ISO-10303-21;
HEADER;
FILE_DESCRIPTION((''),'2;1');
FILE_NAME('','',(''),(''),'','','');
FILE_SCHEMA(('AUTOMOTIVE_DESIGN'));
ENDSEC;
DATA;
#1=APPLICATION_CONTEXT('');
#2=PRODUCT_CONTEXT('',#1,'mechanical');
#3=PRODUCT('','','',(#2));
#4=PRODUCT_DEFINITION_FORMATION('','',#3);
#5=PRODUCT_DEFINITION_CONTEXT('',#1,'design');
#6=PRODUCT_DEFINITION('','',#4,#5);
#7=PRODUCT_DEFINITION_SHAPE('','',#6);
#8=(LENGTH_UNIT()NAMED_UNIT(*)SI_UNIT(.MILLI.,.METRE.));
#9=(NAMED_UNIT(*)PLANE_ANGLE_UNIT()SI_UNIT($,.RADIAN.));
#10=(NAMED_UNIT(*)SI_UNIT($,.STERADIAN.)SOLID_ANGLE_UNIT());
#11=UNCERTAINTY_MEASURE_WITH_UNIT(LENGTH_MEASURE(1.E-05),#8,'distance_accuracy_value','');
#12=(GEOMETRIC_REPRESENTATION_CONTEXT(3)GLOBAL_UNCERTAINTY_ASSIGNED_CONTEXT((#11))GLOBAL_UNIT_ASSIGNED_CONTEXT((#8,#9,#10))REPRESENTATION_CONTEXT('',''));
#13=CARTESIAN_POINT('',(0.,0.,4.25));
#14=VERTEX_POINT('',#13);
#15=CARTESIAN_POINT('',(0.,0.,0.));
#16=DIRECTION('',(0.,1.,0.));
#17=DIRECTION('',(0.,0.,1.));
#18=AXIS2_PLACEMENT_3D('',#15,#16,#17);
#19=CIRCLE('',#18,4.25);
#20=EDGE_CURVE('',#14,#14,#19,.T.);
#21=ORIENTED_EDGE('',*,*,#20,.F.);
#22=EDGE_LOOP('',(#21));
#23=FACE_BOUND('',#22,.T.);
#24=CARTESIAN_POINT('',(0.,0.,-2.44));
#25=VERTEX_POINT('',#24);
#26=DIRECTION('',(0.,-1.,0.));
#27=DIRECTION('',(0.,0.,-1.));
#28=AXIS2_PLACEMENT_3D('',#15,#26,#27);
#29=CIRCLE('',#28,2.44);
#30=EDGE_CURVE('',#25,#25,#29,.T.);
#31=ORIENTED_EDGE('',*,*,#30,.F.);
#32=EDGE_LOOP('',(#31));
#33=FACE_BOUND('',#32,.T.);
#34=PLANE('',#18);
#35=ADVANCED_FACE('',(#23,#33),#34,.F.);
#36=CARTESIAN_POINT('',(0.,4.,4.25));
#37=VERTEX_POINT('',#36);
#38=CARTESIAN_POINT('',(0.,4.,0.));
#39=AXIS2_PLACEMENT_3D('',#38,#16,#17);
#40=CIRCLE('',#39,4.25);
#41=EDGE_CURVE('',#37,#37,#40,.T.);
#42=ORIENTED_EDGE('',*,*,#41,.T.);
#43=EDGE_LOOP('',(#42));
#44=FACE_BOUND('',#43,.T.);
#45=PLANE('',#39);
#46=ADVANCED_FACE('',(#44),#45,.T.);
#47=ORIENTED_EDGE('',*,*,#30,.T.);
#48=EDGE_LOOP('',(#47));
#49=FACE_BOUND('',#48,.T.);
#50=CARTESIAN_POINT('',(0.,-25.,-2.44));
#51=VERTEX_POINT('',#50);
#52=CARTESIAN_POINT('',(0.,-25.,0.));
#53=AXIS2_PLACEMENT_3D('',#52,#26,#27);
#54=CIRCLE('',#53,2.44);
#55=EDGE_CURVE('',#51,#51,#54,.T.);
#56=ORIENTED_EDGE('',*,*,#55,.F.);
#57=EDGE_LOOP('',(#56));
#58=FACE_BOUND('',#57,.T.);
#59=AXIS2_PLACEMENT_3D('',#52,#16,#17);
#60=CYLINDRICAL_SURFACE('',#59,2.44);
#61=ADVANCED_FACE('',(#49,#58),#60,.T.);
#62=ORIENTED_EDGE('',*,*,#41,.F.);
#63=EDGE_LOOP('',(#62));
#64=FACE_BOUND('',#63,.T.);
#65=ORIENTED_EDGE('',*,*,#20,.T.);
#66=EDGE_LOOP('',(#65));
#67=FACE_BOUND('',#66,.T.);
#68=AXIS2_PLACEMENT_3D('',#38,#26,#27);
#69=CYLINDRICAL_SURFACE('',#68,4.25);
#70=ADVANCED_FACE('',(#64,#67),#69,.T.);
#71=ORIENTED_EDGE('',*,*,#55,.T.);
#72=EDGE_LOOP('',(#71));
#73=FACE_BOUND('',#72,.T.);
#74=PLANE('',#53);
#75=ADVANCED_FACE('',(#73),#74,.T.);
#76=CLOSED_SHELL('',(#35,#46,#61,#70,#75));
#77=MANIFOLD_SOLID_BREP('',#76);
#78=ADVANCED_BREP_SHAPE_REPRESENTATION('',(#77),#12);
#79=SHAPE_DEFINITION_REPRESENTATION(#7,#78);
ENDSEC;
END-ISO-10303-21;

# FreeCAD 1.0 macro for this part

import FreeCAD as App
import Part
import Sketcher
from FreeCAD import Vector
Q = App.Units.Quantity

doc = App.newDocument("Part")
body = doc.addObject("PartDesign::Body", "Body")

# Sketch on XZ plane
sketch1 = body.newObject("Sketcher::SketchObject", "Sketch")
sketch1.AttachmentSupport = (doc.getObject("XZ_Plane"), [""])
sketch1.MapMode = "FlatFace"
sketch1.addGeometry(Part.Circle(Vector(0, 0, 0), Vector(0, 0, 1), 4.2), False)
sketch1.addConstraint([
    Sketcher.Constraint("Coincident", 0, 3, -1, 1),
    Sketcher.Constraint("Diameter", 0, Q("8.5 mm")),
])
pad1 = body.newObject("PartDesign::Pad", "Pad")
pad1.Profile = sketch1
pad1.Length = 4
pad1.Reversed = True

# Sketch on XZ plane
sketch2 = body.newObject("Sketcher::SketchObject", "Sketch001")
sketch2.AttachmentSupport = (doc.getObject("XZ_Plane"), [""])
sketch2.MapMode = "FlatFace"
sketch2.addGeometry(Part.Circle(Vector(0, 0, 0), Vector(0, 0, 1), 2.4), False)
sketch2.addConstraint([
    Sketcher.Constraint("Coincident", 0, 3, -1, 1),
    Sketcher.Constraint("Diameter", 0, Q("4.88 mm")),
])
pad2 = body.newObject("PartDesign::Pad", "Pad001")
pad2.Profile = sketch2
pad2.Length = 25

doc.recompute()
